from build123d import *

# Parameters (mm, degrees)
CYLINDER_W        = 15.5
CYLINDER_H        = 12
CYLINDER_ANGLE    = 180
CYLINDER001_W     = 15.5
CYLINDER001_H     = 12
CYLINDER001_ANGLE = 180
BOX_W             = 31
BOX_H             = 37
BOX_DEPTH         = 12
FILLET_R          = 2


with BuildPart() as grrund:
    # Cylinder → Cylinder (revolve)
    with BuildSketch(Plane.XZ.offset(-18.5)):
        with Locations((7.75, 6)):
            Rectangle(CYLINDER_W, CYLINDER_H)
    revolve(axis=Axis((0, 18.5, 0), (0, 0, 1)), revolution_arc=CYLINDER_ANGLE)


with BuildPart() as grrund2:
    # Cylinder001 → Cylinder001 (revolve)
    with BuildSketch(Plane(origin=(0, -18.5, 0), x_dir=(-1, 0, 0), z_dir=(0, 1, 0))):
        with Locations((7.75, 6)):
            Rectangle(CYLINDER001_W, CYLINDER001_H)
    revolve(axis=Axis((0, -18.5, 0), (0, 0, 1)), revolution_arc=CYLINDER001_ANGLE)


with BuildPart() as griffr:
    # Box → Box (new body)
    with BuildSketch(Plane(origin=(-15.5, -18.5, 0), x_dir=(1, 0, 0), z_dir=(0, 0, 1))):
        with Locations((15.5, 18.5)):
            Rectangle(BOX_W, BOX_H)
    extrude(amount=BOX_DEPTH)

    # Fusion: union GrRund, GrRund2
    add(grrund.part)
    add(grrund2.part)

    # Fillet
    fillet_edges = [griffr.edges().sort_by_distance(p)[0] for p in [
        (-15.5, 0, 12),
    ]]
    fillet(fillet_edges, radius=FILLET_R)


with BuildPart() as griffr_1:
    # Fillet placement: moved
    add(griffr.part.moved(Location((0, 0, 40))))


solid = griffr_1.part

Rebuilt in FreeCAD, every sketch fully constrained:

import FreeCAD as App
import Part
import Sketcher
from FreeCAD import Vector


def edges_at(feature, points):
    """Names of the edges that pass closest to the given points."""
    edges = feature.Shape.Edges
    near = lambda p: min(range(len(edges)), key=lambda i: edges[i].distToShape(Part.Vertex(*p))[0])
    return sorted({f"Edge{near(p) + 1}" for p in points})

doc = App.newDocument("Part")
body = doc.addObject("PartDesign::Body", "Body")

# Sketch on XZ plane
sketch1 = body.newObject("Sketcher::SketchObject", "Sketch")
sketch1.AttachmentSupport = (doc.getObject("XZ_Plane"), [""])
sketch1.MapMode = "FlatFace"
sketch1.AttachmentOffset = App.Placement(Vector(0, 0, -18.5), App.Rotation())
sketch1.addGeometry([
    Part.LineSegment(Vector(0, 12, 0), Vector(0, 0, 0)),
    Part.LineSegment(Vector(0, 0, 0), Vector(15.5, 0, 0)),
    Part.LineSegment(Vector(15.5, 0, 0), Vector(15.5, 12, 0)),
    Part.LineSegment(Vector(15.5, 12, 0), Vector(0, 12, 0)),
], False)
sketch1.addConstraint([
    Sketcher.Constraint("Coincident", 0, 2, 1, 1),
    Sketcher.Constraint("Coincident", 1, 2, 2, 1),
    Sketcher.Constraint("Coincident", 2, 2, 3, 1),
    Sketcher.Constraint("Coincident", 3, 2, 0, 1),
    Sketcher.Constraint("Vertical", 0),
    Sketcher.Constraint("Horizontal", 1),
    Sketcher.Constraint("Vertical", 2),
    Sketcher.Constraint("Horizontal", 3),
    Sketcher.Constraint("Coincident", 0, 2, -1, 1),
    Sketcher.Constraint("DistanceY", 0, 2, 0, 1, 12.0),
    Sketcher.Constraint("DistanceX", 1, 1, 1, 2, 15.5),
])
revolution = body.newObject("PartDesign::Revolution", "Revolution")
revolution.Profile = sketch1
revolution.ReferenceAxis = (sketch1, ["V_Axis"])
revolution.Angle = 180
body2 = doc.addObject("PartDesign::Body", "Body001")

# Sketch on XZ plane
sketch2 = body2.newObject("Sketcher::SketchObject", "Sketch001")
sketch2.AttachmentSupport = (doc.getObject("XZ_Plane001"), [""])
sketch2.MapMode = "FlatFace"
sketch2.AttachmentOffset = App.Placement(Vector(0, 0, 18.5), App.Rotation())
sketch2.addGeometry([
    Part.LineSegment(Vector(0, 12, 0), Vector(0, 0, 0)),
    Part.LineSegment(Vector(0, 0, 0), Vector(-15.5, 0, 0)),
    Part.LineSegment(Vector(-15.5, 0, 0), Vector(-15.5, 12, 0)),
    Part.LineSegment(Vector(-15.5, 12, 0), Vector(0, 12, 0)),
], False)
sketch2.addConstraint([
    Sketcher.Constraint("Coincident", 0, 2, 1, 1),
    Sketcher.Constraint("Coincident", 1, 2, 2, 1),
    Sketcher.Constraint("Coincident", 2, 2, 3, 1),
    Sketcher.Constraint("Coincident", 3, 2, 0, 1),
    Sketcher.Constraint("Vertical", 0),
    Sketcher.Constraint("Horizontal", 1),
    Sketcher.Constraint("Vertical", 2),
    Sketcher.Constraint("Horizontal", 3),
    Sketcher.Constraint("Coincident", 0, 2, -1, 1),
    Sketcher.Constraint("DistanceY", 0, 2, 0, 1, 12.0),
    Sketcher.Constraint("DistanceX", 1, 2, 1, 1, 15.5),
])
revolution2 = body2.newObject("PartDesign::Revolution", "Revolution001")
revolution2.Profile = sketch2
revolution2.ReferenceAxis = (sketch2, ["V_Axis"])
revolution2.Angle = 180
body3 = doc.addObject("PartDesign::Body", "Body002")

# Sketch on XY plane
sketch3 = body3.newObject("Sketcher::SketchObject", "Sketch002")
sketch3.AttachmentSupport = (doc.getObject("XY_Plane002"), [""])
sketch3.MapMode = "FlatFace"
sketch3.addGeometry([
    Part.LineSegment(Vector(-15.5, 18.5, 0), Vector(-15.5, -18.5, 0)),
    Part.LineSegment(Vector(-15.5, -18.5, 0), Vector(15.5, -18.5, 0)),
    Part.LineSegment(Vector(15.5, -18.5, 0), Vector(15.5, 18.5, 0)),
    Part.LineSegment(Vector(15.5, 18.5, 0), Vector(-15.5, 18.5, 0)),
], False)
sketch3.addConstraint([
    Sketcher.Constraint("Coincident", 0, 2, 1, 1),
    Sketcher.Constraint("Coincident", 1, 2, 2, 1),
    Sketcher.Constraint("Coincident", 2, 2, 3, 1),
    Sketcher.Constraint("Coincident", 3, 2, 0, 1),
    Sketcher.Constraint("Vertical", 0),
    Sketcher.Constraint("Horizontal", 1),
    Sketcher.Constraint("Vertical", 2),
    Sketcher.Constraint("Horizontal", 3),
    Sketcher.Constraint("Symmetric", 0, 2, 2, 2, -1, 1),
    Sketcher.Constraint("DistanceX", 1, 1, 1, 2, 31.0),
    Sketcher.Constraint("DistanceY", 0, 2, 0, 1, 37.0),
])
pad1 = body3.newObject("PartDesign::Pad", "Pad")
pad1.Profile = sketch3
pad1.Length = 12
doc.recompute()

boolean = body3.newObject("PartDesign::Boolean", "Boolean")
boolean.Type = "Fuse"
boolean.addObjects([body])
doc.recompute()

boolean2 = body3.newObject("PartDesign::Boolean", "Boolean001")
boolean2.Type = "Fuse"
boolean2.addObjects([body2])
doc.recompute()

fillet = body3.newObject("PartDesign::Fillet", "Fillet")
fillet.Base = (boolean2, edges_at(boolean2, [(-15.5, 0, 12)]))
fillet.Radius = 2
body4 = doc.addObject("PartDesign::Body", "Body003")
doc.recompute()

body3.Placement = App.Placement(Vector(0, 0, 40), App.Rotation(Vector(0, 0, 1), 0))
boolean3 = body4.newObject("PartDesign::Boolean", "Boolean002")
boolean3.Type = "Fuse"
boolean3.addObjects([body3])

doc.recompute()
